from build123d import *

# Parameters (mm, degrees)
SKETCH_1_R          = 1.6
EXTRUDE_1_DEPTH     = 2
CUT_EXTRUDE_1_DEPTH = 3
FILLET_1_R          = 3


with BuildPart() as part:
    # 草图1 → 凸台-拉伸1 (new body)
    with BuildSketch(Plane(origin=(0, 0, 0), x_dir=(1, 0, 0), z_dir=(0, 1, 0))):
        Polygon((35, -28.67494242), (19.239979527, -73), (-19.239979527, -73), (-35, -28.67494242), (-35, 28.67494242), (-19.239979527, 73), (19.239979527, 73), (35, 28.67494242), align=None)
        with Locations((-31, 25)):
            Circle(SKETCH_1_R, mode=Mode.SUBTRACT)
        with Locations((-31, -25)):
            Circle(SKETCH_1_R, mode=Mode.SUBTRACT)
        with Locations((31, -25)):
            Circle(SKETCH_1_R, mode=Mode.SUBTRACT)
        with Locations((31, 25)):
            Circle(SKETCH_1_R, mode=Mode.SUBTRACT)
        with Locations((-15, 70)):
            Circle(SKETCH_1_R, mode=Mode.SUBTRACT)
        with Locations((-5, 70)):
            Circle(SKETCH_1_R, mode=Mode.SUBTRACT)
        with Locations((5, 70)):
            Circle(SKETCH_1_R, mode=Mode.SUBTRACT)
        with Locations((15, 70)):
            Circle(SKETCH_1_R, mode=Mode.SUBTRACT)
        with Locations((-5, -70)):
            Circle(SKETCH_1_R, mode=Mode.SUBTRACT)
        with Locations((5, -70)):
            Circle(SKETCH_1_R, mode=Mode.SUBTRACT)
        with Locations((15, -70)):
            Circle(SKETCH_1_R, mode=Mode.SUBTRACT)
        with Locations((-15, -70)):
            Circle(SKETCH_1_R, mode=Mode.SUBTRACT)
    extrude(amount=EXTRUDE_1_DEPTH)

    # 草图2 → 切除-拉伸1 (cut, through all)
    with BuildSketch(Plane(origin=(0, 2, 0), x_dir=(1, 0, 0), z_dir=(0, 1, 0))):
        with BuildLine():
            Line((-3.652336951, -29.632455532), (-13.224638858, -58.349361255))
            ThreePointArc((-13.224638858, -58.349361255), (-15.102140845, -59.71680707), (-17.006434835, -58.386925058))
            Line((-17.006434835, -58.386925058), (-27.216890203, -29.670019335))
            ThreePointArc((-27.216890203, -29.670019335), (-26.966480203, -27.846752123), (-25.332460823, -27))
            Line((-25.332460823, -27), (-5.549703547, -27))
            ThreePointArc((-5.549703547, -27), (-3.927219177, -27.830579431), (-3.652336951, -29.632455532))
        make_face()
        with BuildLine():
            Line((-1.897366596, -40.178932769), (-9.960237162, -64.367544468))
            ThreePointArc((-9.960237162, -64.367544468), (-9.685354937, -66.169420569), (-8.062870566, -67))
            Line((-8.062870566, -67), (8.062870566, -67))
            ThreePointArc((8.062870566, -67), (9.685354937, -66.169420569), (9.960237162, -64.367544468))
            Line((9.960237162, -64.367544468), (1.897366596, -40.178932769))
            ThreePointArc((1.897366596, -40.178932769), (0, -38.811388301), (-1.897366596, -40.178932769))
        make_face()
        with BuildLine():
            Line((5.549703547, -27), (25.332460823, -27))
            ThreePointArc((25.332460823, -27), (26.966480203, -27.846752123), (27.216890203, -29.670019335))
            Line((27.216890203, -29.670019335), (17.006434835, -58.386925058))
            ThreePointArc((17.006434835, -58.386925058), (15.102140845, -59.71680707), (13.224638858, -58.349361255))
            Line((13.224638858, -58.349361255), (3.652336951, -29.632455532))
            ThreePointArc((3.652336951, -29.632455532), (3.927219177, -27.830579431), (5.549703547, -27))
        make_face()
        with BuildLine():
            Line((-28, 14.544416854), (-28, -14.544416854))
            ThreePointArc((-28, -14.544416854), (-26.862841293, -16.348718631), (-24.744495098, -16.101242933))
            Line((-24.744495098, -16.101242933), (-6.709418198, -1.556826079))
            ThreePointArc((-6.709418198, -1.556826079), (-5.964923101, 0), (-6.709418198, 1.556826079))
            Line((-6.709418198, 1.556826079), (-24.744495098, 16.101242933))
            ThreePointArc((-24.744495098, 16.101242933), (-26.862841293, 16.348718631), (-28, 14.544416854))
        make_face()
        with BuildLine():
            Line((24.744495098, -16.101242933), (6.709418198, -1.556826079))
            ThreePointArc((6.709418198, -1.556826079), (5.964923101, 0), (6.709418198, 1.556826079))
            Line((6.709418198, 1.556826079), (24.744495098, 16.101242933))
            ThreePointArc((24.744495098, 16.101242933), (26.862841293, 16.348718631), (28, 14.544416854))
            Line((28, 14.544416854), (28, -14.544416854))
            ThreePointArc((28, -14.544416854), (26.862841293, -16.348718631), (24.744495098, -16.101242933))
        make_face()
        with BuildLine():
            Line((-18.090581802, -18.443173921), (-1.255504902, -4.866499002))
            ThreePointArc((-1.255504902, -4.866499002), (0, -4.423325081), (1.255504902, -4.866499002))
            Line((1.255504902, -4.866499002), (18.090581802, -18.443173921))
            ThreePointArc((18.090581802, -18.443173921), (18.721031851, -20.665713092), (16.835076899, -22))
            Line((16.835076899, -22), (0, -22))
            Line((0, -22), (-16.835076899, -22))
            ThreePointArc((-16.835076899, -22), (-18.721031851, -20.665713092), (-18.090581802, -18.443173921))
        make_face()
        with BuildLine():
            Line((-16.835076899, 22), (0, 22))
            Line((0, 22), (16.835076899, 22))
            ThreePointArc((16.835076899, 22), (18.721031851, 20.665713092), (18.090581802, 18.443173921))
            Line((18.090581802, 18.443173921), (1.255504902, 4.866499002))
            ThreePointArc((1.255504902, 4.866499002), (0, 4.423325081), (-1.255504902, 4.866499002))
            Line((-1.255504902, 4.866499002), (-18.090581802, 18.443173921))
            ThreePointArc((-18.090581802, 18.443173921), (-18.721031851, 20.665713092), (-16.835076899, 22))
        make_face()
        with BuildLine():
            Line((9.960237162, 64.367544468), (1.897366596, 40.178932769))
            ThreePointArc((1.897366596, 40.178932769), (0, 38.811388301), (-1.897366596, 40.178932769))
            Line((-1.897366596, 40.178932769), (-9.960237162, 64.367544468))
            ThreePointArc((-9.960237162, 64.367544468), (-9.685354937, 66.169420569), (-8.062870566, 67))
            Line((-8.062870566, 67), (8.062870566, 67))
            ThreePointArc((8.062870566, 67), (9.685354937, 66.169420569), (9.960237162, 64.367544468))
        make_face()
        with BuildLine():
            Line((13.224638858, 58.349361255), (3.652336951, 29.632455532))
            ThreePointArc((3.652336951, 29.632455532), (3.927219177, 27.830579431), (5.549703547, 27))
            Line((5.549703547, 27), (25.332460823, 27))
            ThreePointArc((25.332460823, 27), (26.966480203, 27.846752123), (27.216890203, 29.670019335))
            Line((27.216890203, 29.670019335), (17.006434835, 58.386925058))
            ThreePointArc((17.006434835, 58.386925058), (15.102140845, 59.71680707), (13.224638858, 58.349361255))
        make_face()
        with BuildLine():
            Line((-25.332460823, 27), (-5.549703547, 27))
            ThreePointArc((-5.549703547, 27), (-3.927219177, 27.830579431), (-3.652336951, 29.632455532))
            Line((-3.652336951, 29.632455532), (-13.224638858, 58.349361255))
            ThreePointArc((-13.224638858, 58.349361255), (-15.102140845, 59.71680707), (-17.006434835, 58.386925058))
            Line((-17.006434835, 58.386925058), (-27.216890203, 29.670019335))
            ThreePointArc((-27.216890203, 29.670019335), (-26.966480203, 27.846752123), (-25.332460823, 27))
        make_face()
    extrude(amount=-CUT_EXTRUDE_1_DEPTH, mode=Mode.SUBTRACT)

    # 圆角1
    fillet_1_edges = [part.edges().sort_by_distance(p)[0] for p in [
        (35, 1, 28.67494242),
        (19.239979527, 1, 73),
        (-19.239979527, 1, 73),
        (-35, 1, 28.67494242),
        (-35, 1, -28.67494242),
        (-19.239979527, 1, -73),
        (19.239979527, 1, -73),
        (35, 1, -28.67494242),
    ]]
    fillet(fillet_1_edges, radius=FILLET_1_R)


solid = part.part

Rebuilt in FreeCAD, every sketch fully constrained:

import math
import FreeCAD as App
import Part
import Sketcher
from FreeCAD import Vector
Q = App.Units.Quantity


def edges_at(feature, points):
    """Names of the edges that pass closest to the given points."""
    edges = feature.Shape.Edges
    near = lambda p: min(range(len(edges)), key=lambda i: edges[i].distToShape(Part.Vertex(*p))[0])
    return sorted({f"Edge{near(p) + 1}" for p in points})

doc = App.newDocument("Part")
body = doc.addObject("PartDesign::Body", "Body")

# Sketch on XZ plane
sketch1 = doc.addObject("Sketcher::SketchObject", "Sketch")
body.addObject(sketch1)
sketch1.AttachmentSupport = (doc.XZ_Plane, [""])
sketch1.MapMode = "FlatFace"
sketch1.addGeometry(Part.LineSegment(Vector(19.2, 73, 0), Vector(35, 28.7, 0)), False)
sketch1.addGeometry(Part.LineSegment(Vector(35, 28.7, 0), Vector(35, -28.7, 0)), False)
sketch1.addGeometry(Part.LineSegment(Vector(35, -28.7, 0), Vector(19.2, -73, 0)), False)
sketch1.addGeometry(Part.LineSegment(Vector(19.2, -73, 0), Vector(-19.2, -73, 0)), False)
sketch1.addGeometry(Part.LineSegment(Vector(-19.2, -73, 0), Vector(-35, -28.7, 0)), False)
sketch1.addGeometry(Part.LineSegment(Vector(-35, -28.7, 0), Vector(-35, 28.7, 0)), False)
sketch1.addGeometry(Part.LineSegment(Vector(-35, 28.7, 0), Vector(-19.2, 73, 0)), False)
sketch1.addGeometry(Part.LineSegment(Vector(-19.2, 73, 0), Vector(19.2, 73, 0)), False)
sketch1.addGeometry(Part.Circle(Vector(15, 70, 0), Vector(0, 0, 1), 1.6), False)
sketch1.addGeometry(Part.Circle(Vector(5, 70, 0), Vector(0, 0, 1), 1.6), False)
sketch1.addGeometry(Part.Circle(Vector(31, 25, 0), Vector(0, 0, 1), 1.6), False)
sketch1.addGeometry(Part.Circle(Vector(-5, 70, 0), Vector(0, 0, 1), 1.6), False)
sketch1.addGeometry(Part.Circle(Vector(-15, 70, 0), Vector(0, 0, 1), 1.6), False)
sketch1.addGeometry(Part.Circle(Vector(-31, 25, 0), Vector(0, 0, 1), 1.6), False)
sketch1.addGeometry(Part.Circle(Vector(31, -25, 0), Vector(0, 0, 1), 1.6), False)
sketch1.addGeometry(Part.Circle(Vector(15, -70, 0), Vector(0, 0, 1), 1.6), False)
sketch1.addGeometry(Part.Circle(Vector(5, -70, 0), Vector(0, 0, 1), 1.6), False)
sketch1.addGeometry(Part.Circle(Vector(-31, -25, 0), Vector(0, 0, 1), 1.6), False)
sketch1.addGeometry(Part.Circle(Vector(-5, -70, 0), Vector(0, 0, 1), 1.6), False)
sketch1.addGeometry(Part.Circle(Vector(-15, -70, 0), Vector(0, 0, 1), 1.6), False)
sketch1.addConstraint(Sketcher.Constraint("Coincident", 0, 2, 1, 1))
sketch1.addConstraint(Sketcher.Constraint("Coincident", 1, 2, 2, 1))
sketch1.addConstraint(Sketcher.Constraint("Coincident", 2, 2, 3, 1))
sketch1.addConstraint(Sketcher.Constraint("Coincident", 3, 2, 4, 1))
sketch1.addConstraint(Sketcher.Constraint("Coincident", 4, 2, 5, 1))
sketch1.addConstraint(Sketcher.Constraint("Coincident", 5, 2, 6, 1))
sketch1.addConstraint(Sketcher.Constraint("Coincident", 6, 2, 7, 1))
sketch1.addConstraint(Sketcher.Constraint("Coincident", 7, 2, 0, 1))
sketch1.addConstraint(Sketcher.Constraint("Vertical", 1))
sketch1.addConstraint(Sketcher.Constraint("Horizontal", 3))
sketch1.addConstraint(Sketcher.Constraint("Vertical", 5))
sketch1.addConstraint(Sketcher.Constraint("Horizontal", 7))
sketch1.addConstraint(Sketcher.Constraint("Equal", 8, 9))
sketch1.addConstraint(Sketcher.Constraint("Equal", 9, 10))
sketch1.addConstraint(Sketcher.Constraint("Equal", 10, 11))
sketch1.addConstraint(Sketcher.Constraint("Equal", 11, 12))
sketch1.addConstraint(Sketcher.Constraint("Equal", 12, 13))
sketch1.addConstraint(Sketcher.Constraint("Equal", 13, 14))
sketch1.addConstraint(Sketcher.Constraint("Equal", 14, 15))
sketch1.addConstraint(Sketcher.Constraint("Equal", 15, 16))
sketch1.addConstraint(Sketcher.Constraint("Equal", 16, 17))
sketch1.addConstraint(Sketcher.Constraint("Equal", 17, 18))
sketch1.addConstraint(Sketcher.Constraint("Equal", 18, 19))
sketch1.addConstraint(Sketcher.Constraint("Symmetric", 13, 3, 14, 3, -1, 1))
sketch1.addConstraint(Sketcher.Constraint("Symmetric", 12, 3, 15, 3, -1, 1))
sketch1.addConstraint(Sketcher.Constraint("Symmetric", 11, 3, 16, 3, -1, 1))
sketch1.addConstraint(Sketcher.Constraint("Symmetric", 10, 3, 17, 3, -1, 1))
sketch1.addConstraint(Sketcher.Constraint("Symmetric", 9, 3, 18, 3, -1, 1))
sketch1.addConstraint(Sketcher.Constraint("Symmetric", 8, 3, 19, 3, -1, 1))
sketch1.addConstraint(Sketcher.Constraint("Symmetric", 0, 2, 4, 2, -1, 1))
sketch1.addConstraint(Sketcher.Constraint("Symmetric", 2, 2, 6, 2, -1, 1))
sketch1.addConstraint(Sketcher.Constraint("Symmetric", 9, 3, 11, 3, -2))
sketch1.addConstraint(Sketcher.Constraint("Symmetric", 8, 3, 12, 3, -2))
sketch1.addConstraint(Sketcher.Constraint("Symmetric", 10, 3, 13, 3, -2))
sketch1.addConstraint(Sketcher.Constraint("Parallel", 0, 4))
sketch1.addConstraint(Sketcher.Constraint("Parallel", 2, 6))
sketch1.addConstraint(Sketcher.Constraint("Horizontal", 8, 3, 9, 3))
sketch1.addConstraint(Sketcher.Constraint("Horizontal", 1, 2, 4, 2))
sketch1.addConstraint(Sketcher.Constraint("Vertical", 3, 2, 6, 2))
sketch1.addConstraint(Sketcher.Constraint("Diameter", 8, Q("3.2 mm")))
sketch1.addConstraint(Sketcher.Constraint("DistanceX", -1, 1, 8, 3, Q("15 mm")))
sketch1.addConstraint(Sketcher.Constraint("DistanceY", -1, 1, 8, 3, Q("70 mm")))
sketch1.addConstraint(Sketcher.Constraint("DistanceX", -1, 1, 9, 3, Q("5 mm")))
sketch1.addConstraint(Sketcher.Constraint("DistanceX", -1, 1, 10, 3, Q("31 mm")))
sketch1.addConstraint(Sketcher.Constraint("DistanceY", -1, 1, 10, 3, Q("25 mm")))
sketch1.addConstraint(Sketcher.Constraint("DistanceX", -1, 1, 0, 2, Q("35 mm")))
sketch1.addConstraint(Sketcher.Constraint("DistanceY", 2, 2, -1, 1, Q("73 mm")))
sketch1.addConstraint(Sketcher.Constraint("DistanceX", 3, 2, 3, 1, Q("38.479959 mm")))
sketch1.addConstraint(Sketcher.Constraint("Distance", 0, Q("47.04348 mm")))
pad1 = doc.addObject("PartDesign::Pad", "Pad")
body.addObject(pad1)
pad1.Profile = sketch1
pad1.Length = 2
pad1.Reversed = True

# Sketch on XZ plane
sketch2 = doc.addObject("Sketcher::SketchObject", "Sketch001")
body.addObject(sketch2)
sketch2.AttachmentSupport = (doc.XZ_Plane, [""])
sketch2.MapMode = "FlatFace"
sketch2.AttachmentOffset = App.Placement(Vector(0, 0, -2), App.Rotation())
sketch2.addGeometry(Part.LineSegment(Vector(-13.2, 58.3, 0), Vector(-3.7, 29.6, 0)), False)
sketch2.addGeometry(Part.ArcOfCircle(Part.Circle(Vector(-5.5, 29, 0), Vector(0, 0, 1), 2), math.radians(-90), math.radians(18)), False)
sketch2.addGeometry(Part.LineSegment(Vector(-5.5, 27, 0), Vector(-25.3, 27, 0)), False)
sketch2.addGeometry(Part.ArcOfCircle(Part.Circle(Vector(-25.3, 29, 0), Vector(0, 0, 1), 2), math.radians(160), math.radians(270)), False)
sketch2.addGeometry(Part.LineSegment(Vector(-27.2, 29.7, 0), Vector(-17, 58.4, 0)), False)
sketch2.addGeometry(Part.ArcOfCircle(Part.Circle(Vector(-15.1, 57.7, 0), Vector(0, 0, 1), 2), math.radians(18), math.radians(160)), False)
sketch2.addGeometry(Part.LineSegment(Vector(-1.9, 40.2, 0), Vector(-10, 64.4, 0)), False)
sketch2.addGeometry(Part.ArcOfCircle(Part.Circle(Vector(-8.1, 65, 0), Vector(0, 0, 1), 2), math.radians(90), math.radians(198)), False)
sketch2.addGeometry(Part.LineSegment(Vector(-8.1, 67, 0), Vector(8.1, 67, 0)), False)
sketch2.addGeometry(Part.ArcOfCircle(Part.Circle(Vector(8.1, 65, 0), Vector(0, 0, 1), 2), math.radians(-18), math.radians(90)), False)
sketch2.addGeometry(Part.LineSegment(Vector(10, 64.4, 0), Vector(1.9, 40.2, 0)), False)
sketch2.addGeometry(Part.ArcOfCircle(Part.Circle(Vector(0, 40.8, 0), Vector(0, 0, 1), 2), math.radians(-162), math.radians(-18)), False)
sketch2.addGeometry(Part.LineSegment(Vector(25.3, 27, 0), Vector(5.5, 27, 0)), False)
sketch2.addGeometry(Part.ArcOfCircle(Part.Circle(Vector(5.5, 29, 0), Vector(0, 0, 1), 2), math.radians(162), math.radians(270)), False)
sketch2.addGeometry(Part.LineSegment(Vector(3.7, 29.6, 0), Vector(13.2, 58.3, 0)), False)
sketch2.addGeometry(Part.ArcOfCircle(Part.Circle(Vector(15.1, 57.7, 0), Vector(0, 0, 1), 2), math.radians(20), math.radians(162)), False)
sketch2.addGeometry(Part.LineSegment(Vector(17, 58.4, 0), Vector(27.2, 29.7, 0)), False)
sketch2.addGeometry(Part.ArcOfCircle(Part.Circle(Vector(25.3, 29, 0), Vector(0, 0, 1), 2), math.radians(-90), math.radians(20)), False)
sketch2.addGeometry(Part.LineSegment(Vector(-28, -14.5, 0), Vector(-28, 14.5, 0)), False)
sketch2.addGeometry(Part.ArcOfCircle(Part.Circle(Vector(-26, 14.5, 0), Vector(0, 0, 1), 2), math.radians(51), math.radians(180)), False)
sketch2.addGeometry(Part.LineSegment(Vector(-24.7, 16.1, 0), Vector(-6.7, 1.6, 0)), False)
sketch2.addGeometry(Part.ArcOfCircle(Part.Circle(Vector(-8, 0, 0), Vector(0, 0, 1), 2), math.radians(-51), math.radians(51)), False)
sketch2.addGeometry(Part.LineSegment(Vector(-6.7, -1.6, 0), Vector(-24.7, -16.1, 0)), False)
sketch2.addGeometry(Part.ArcOfCircle(Part.Circle(Vector(-26, -14.5, 0), Vector(0, 0, 1), 2), math.radians(180), math.radians(309)), False)
sketch2.addGeometry(Part.LineSegment(Vector(6.7, 1.6, 0), Vector(24.7, 16.1, 0)), False)
sketch2.addGeometry(Part.ArcOfCircle(Part.Circle(Vector(26, 14.5, 0), Vector(0, 0, 1), 2), math.radians(0), math.radians(129)), False)
sketch2.addGeometry(Part.LineSegment(Vector(28, 14.5, 0), Vector(28, -14.5, 0)), False)
sketch2.addGeometry(Part.ArcOfCircle(Part.Circle(Vector(26, -14.5, 0), Vector(0, 0, 1), 2), math.radians(-129), math.radians(0)), False)
sketch2.addGeometry(Part.LineSegment(Vector(24.7, -16.1, 0), Vector(6.7, -1.6, 0)), False)
sketch2.addGeometry(Part.ArcOfCircle(Part.Circle(Vector(8, 0, 0), Vector(0, 0, 1), 2), math.radians(129), math.radians(231)), False)
sketch2.addGeometry(Part.LineSegment(Vector(-1.3, 4.9, 0), Vector(-18.1, 18.4, 0)), False)
sketch2.addGeometry(Part.ArcOfCircle(Part.Circle(Vector(-16.8, 20, 0), Vector(0, 0, 1), 2), math.radians(90), math.radians(231)), False)
sketch2.addGeometry(Part.LineSegment(Vector(-16.8, 22, 0), Vector(16.8, 22, 0)), False)
sketch2.addGeometry(Part.ArcOfCircle(Part.Circle(Vector(16.8, 20, 0), Vector(0, 0, 1), 2), math.radians(-51), math.radians(90)), False)
sketch2.addGeometry(Part.LineSegment(Vector(18.1, 18.4, 0), Vector(1.3, 4.9, 0)), False)
sketch2.addGeometry(Part.ArcOfCircle(Part.Circle(Vector(0, 6.4, 0), Vector(0, 0, 1), 2), math.radians(-129), math.radians(-51)), False)
sketch2.addGeometry(Part.LineSegment(Vector(16.8, -22, 0), Vector(-16.8, -22, 0)), False)
sketch2.addGeometry(Part.ArcOfCircle(Part.Circle(Vector(-16.8, -20, 0), Vector(0, 0, 1), 2), math.radians(129), math.radians(270)), False)
sketch2.addGeometry(Part.LineSegment(Vector(-18.1, -18.4, 0), Vector(-1.3, -4.9, 0)), False)
sketch2.addGeometry(Part.ArcOfCircle(Part.Circle(Vector(0, -6.4, 0), Vector(0, 0, 1), 2), math.radians(51), math.radians(129)), False)
sketch2.addGeometry(Part.LineSegment(Vector(1.3, -4.9, 0), Vector(18.1, -18.4, 0)), False)
sketch2.addGeometry(Part.ArcOfCircle(Part.Circle(Vector(16.8, -20, 0), Vector(0, 0, 1), 2), math.radians(-90), math.radians(51)), False)
sketch2.addGeometry(Part.LineSegment(Vector(1.9, -40.2, 0), Vector(10, -64.4, 0)), False)
sketch2.addGeometry(Part.ArcOfCircle(Part.Circle(Vector(8.1, -65, 0), Vector(0, 0, 1), 2), math.radians(-90), math.radians(18)), False)
sketch2.addGeometry(Part.LineSegment(Vector(8.1, -67, 0), Vector(-8.1, -67, 0)), False)
sketch2.addGeometry(Part.ArcOfCircle(Part.Circle(Vector(-8.1, -65, 0), Vector(0, 0, 1), 2), math.radians(162), math.radians(270)), False)
sketch2.addGeometry(Part.LineSegment(Vector(-10, -64.4, 0), Vector(-1.9, -40.2, 0)), False)
sketch2.addGeometry(Part.ArcOfCircle(Part.Circle(Vector(0, -40.8, 0), Vector(0, 0, 1), 2), math.radians(18), math.radians(162)), False)
sketch2.addGeometry(Part.LineSegment(Vector(13.2, -58.3, 0), Vector(3.7, -29.6, 0)), False)
sketch2.addGeometry(Part.ArcOfCircle(Part.Circle(Vector(5.5, -29, 0), Vector(0, 0, 1), 2), math.radians(90), math.radians(198)), False)
sketch2.addGeometry(Part.LineSegment(Vector(5.5, -27, 0), Vector(25.3, -27, 0)), False)
sketch2.addGeometry(Part.ArcOfCircle(Part.Circle(Vector(25.3, -29, 0), Vector(0, 0, 1), 2), math.radians(-20), math.radians(90)), False)
sketch2.addGeometry(Part.LineSegment(Vector(27.2, -29.7, 0), Vector(17, -58.4, 0)), False)
sketch2.addGeometry(Part.ArcOfCircle(Part.Circle(Vector(15.1, -57.7, 0), Vector(0, 0, 1), 2), math.radians(-162), math.radians(-20)), False)
sketch2.addGeometry(Part.LineSegment(Vector(-25.3, -27, 0), Vector(-5.5, -27, 0)), False)
sketch2.addGeometry(Part.ArcOfCircle(Part.Circle(Vector(-5.5, -29, 0), Vector(0, 0, 1), 2), math.radians(-18), math.radians(90)), False)
sketch2.addGeometry(Part.LineSegment(Vector(-3.7, -29.6, 0), Vector(-13.2, -58.3, 0)), False)
sketch2.addGeometry(Part.ArcOfCircle(Part.Circle(Vector(-15.1, -57.7, 0), Vector(0, 0, 1), 2), math.radians(-160), math.radians(-18)), False)
sketch2.addGeometry(Part.LineSegment(Vector(-17, -58.4, 0), Vector(-27.2, -29.7, 0)), False)
sketch2.addGeometry(Part.ArcOfCircle(Part.Circle(Vector(-25.3, -29, 0), Vector(0, 0, 1), 2), math.radians(90), math.radians(200)), False)
sketch2.addConstraint(Sketcher.Constraint("Tangent", 0, 2, 1, 2))
sketch2.addConstraint(Sketcher.Constraint("Tangent", 1, 1, 2, 1))
sketch2.addConstraint(Sketcher.Constraint("Tangent", 2, 2, 3, 2))
sketch2.addConstraint(Sketcher.Constraint("Tangent", 3, 1, 4, 1))
sketch2.addConstraint(Sketcher.Constraint("Tangent", 4, 2, 5, 2))
sketch2.addConstraint(Sketcher.Constraint("Tangent", 5, 1, 0, 1))
sketch2.addConstraint(Sketcher.Constraint("Tangent", 6, 2, 7, 2))
sketch2.addConstraint(Sketcher.Constraint("Tangent", 7, 1, 8, 1))
sketch2.addConstraint(Sketcher.Constraint("Tangent", 8, 2, 9, 2))
sketch2.addConstraint(Sketcher.Constraint("Tangent", 9, 1, 10, 1))
sketch2.addConstraint(Sketcher.Constraint("Tangent", 10, 2, 11, 2))
sketch2.addConstraint(Sketcher.Constraint("Tangent", 11, 1, 6, 1))
sketch2.addConstraint(Sketcher.Constraint("Tangent", 12, 2, 13, 2))
sketch2.addConstraint(Sketcher.Constraint("Tangent", 13, 1, 14, 1))
sketch2.addConstraint(Sketcher.Constraint("Tangent", 14, 2, 15, 2))
sketch2.addConstraint(Sketcher.Constraint("Tangent", 15, 1, 16, 1))
sketch2.addConstraint(Sketcher.Constraint("Tangent", 16, 2, 17, 2))
sketch2.addConstraint(Sketcher.Constraint("Tangent", 17, 1, 12, 1))
sketch2.addConstraint(Sketcher.Constraint("Tangent", 18, 2, 19, 2))
sketch2.addConstraint(Sketcher.Constraint("Tangent", 19, 1, 20, 1))
sketch2.addConstraint(Sketcher.Constraint("Tangent", 20, 2, 21, 2))
sketch2.addConstraint(Sketcher.Constraint("Tangent", 21, 1, 22, 1))
sketch2.addConstraint(Sketcher.Constraint("Tangent", 22, 2, 23, 2))
sketch2.addConstraint(Sketcher.Constraint("Tangent", 23, 1, 18, 1))
sketch2.addConstraint(Sketcher.Constraint("Tangent", 24, 2, 25, 2))
sketch2.addConstraint(Sketcher.Constraint("Tangent", 25, 1, 26, 1))
sketch2.addConstraint(Sketcher.Constraint("Tangent", 26, 2, 27, 2))
sketch2.addConstraint(Sketcher.Constraint("Tangent", 27, 1, 28, 1))
sketch2.addConstraint(Sketcher.Constraint("Tangent", 28, 2, 29, 2))
sketch2.addConstraint(Sketcher.Constraint("Tangent", 29, 1, 24, 1))
sketch2.addConstraint(Sketcher.Constraint("Tangent", 30, 2, 31, 2))
sketch2.addConstraint(Sketcher.Constraint("Tangent", 31, 1, 32, 1))
sketch2.addConstraint(Sketcher.Constraint("Tangent", 32, 2, 33, 2))
sketch2.addConstraint(Sketcher.Constraint("Tangent", 33, 1, 34, 1))
sketch2.addConstraint(Sketcher.Constraint("Tangent", 34, 2, 35, 2))
sketch2.addConstraint(Sketcher.Constraint("Tangent", 35, 1, 30, 1))
sketch2.addConstraint(Sketcher.Constraint("Tangent", 36, 2, 37, 2))
sketch2.addConstraint(Sketcher.Constraint("Tangent", 37, 1, 38, 1))
sketch2.addConstraint(Sketcher.Constraint("Tangent", 38, 2, 39, 2))
sketch2.addConstraint(Sketcher.Constraint("Tangent", 39, 1, 40, 1))
sketch2.addConstraint(Sketcher.Constraint("Tangent", 40, 2, 41, 2))
sketch2.addConstraint(Sketcher.Constraint("Tangent", 41, 1, 36, 1))
sketch2.addConstraint(Sketcher.Constraint("Tangent", 42, 2, 43, 2))
sketch2.addConstraint(Sketcher.Constraint("Tangent", 43, 1, 44, 1))
sketch2.addConstraint(Sketcher.Constraint("Tangent", 44, 2, 45, 2))
sketch2.addConstraint(Sketcher.Constraint("Tangent", 45, 1, 46, 1))
sketch2.addConstraint(Sketcher.Constraint("Tangent", 46, 2, 47, 2))
sketch2.addConstraint(Sketcher.Constraint("Tangent", 47, 1, 42, 1))
sketch2.addConstraint(Sketcher.Constraint("Tangent", 48, 2, 49, 2))
sketch2.addConstraint(Sketcher.Constraint("Tangent", 49, 1, 50, 1))
sketch2.addConstraint(Sketcher.Constraint("Tangent", 50, 2, 51, 2))
sketch2.addConstraint(Sketcher.Constraint("Tangent", 51, 1, 52, 1))
sketch2.addConstraint(Sketcher.Constraint("Tangent", 52, 2, 53, 2))
sketch2.addConstraint(Sketcher.Constraint("Tangent", 53, 1, 48, 1))
sketch2.addConstraint(Sketcher.Constraint("Tangent", 54, 2, 55, 2))
sketch2.addConstraint(Sketcher.Constraint("Tangent", 55, 1, 56, 1))
sketch2.addConstraint(Sketcher.Constraint("Tangent", 56, 2, 57, 2))
sketch2.addConstraint(Sketcher.Constraint("Tangent", 57, 1, 58, 1))
sketch2.addConstraint(Sketcher.Constraint("Tangent", 58, 2, 59, 2))
sketch2.addConstraint(Sketcher.Constraint("Tangent", 59, 1, 54, 1))
sketch2.addConstraint(Sketcher.Constraint("Horizontal", 2))
sketch2.addConstraint(Sketcher.Constraint("Horizontal", 8))
sketch2.addConstraint(Sketcher.Constraint("Horizontal", 12))
sketch2.addConstraint(Sketcher.Constraint("Vertical", 18))
sketch2.addConstraint(Sketcher.Constraint("Vertical", 26))
sketch2.addConstraint(Sketcher.Constraint("Horizontal", 32))
sketch2.addConstraint(Sketcher.Constraint("Horizontal", 36))
sketch2.addConstraint(Sketcher.Constraint("Horizontal", 44))
sketch2.addConstraint(Sketcher.Constraint("Horizontal", 50))
sketch2.addConstraint(Sketcher.Constraint("Horizontal", 54))
sketch2.addConstraint(Sketcher.Constraint("Equal", 1, 3))
sketch2.addConstraint(Sketcher.Constraint("Equal", 3, 5))
sketch2.addConstraint(Sketcher.Constraint("Equal", 5, 7))
sketch2.addConstraint(Sketcher.Constraint("Equal", 7, 9))
sketch2.addConstraint(Sketcher.Constraint("Equal", 9, 11))
sketch2.addConstraint(Sketcher.Constraint("Equal", 11, 13))
sketch2.addConstraint(Sketcher.Constraint("Equal", 13, 15))
sketch2.addConstraint(Sketcher.Constraint("Equal", 15, 17))
sketch2.addConstraint(Sketcher.Constraint("Equal", 17, 19))
sketch2.addConstraint(Sketcher.Constraint("Equal", 19, 21))
sketch2.addConstraint(Sketcher.Constraint("Equal", 21, 23))
sketch2.addConstraint(Sketcher.Constraint("Equal", 23, 25))
sketch2.addConstraint(Sketcher.Constraint("Equal", 25, 27))
sketch2.addConstraint(Sketcher.Constraint("Equal", 27, 29))
sketch2.addConstraint(Sketcher.Constraint("Equal", 29, 31))
sketch2.addConstraint(Sketcher.Constraint("Equal", 31, 33))
sketch2.addConstraint(Sketcher.Constraint("Equal", 33, 35))
sketch2.addConstraint(Sketcher.Constraint("Equal", 35, 37))
sketch2.addConstraint(Sketcher.Constraint("Equal", 37, 39))
sketch2.addConstraint(Sketcher.Constraint("Equal", 39, 41))
sketch2.addConstraint(Sketcher.Constraint("Equal", 41, 43))
sketch2.addConstraint(Sketcher.Constraint("Equal", 43, 45))
sketch2.addConstraint(Sketcher.Constraint("Equal", 45, 47))
sketch2.addConstraint(Sketcher.Constraint("Equal", 47, 49))
sketch2.addConstraint(Sketcher.Constraint("Equal", 49, 51))
sketch2.addConstraint(Sketcher.Constraint("Equal", 51, 53))
sketch2.addConstraint(Sketcher.Constraint("Equal", 53, 55))
sketch2.addConstraint(Sketcher.Constraint("Equal", 55, 57))
sketch2.addConstraint(Sketcher.Constraint("Equal", 57, 59))
sketch2.addConstraint(Sketcher.Constraint("Symmetric", 23, 3, 25, 3, -1, 1))
sketch2.addConstraint(Sketcher.Constraint("Symmetric", 21, 3, 29, 3, -1, 1))
sketch2.addConstraint(Sketcher.Constraint("Symmetric", 33, 3, 37, 3, -1, 1))
sketch2.addConstraint(Sketcher.Constraint("Symmetric", 35, 3, 39, 3, -1, 1))
sketch2.addConstraint(Sketcher.Constraint("Symmetric", 7, 3, 43, 3, -1, 1))
sketch2.addConstraint(Sketcher.Constraint("Symmetric", 11, 3, 47, 3, -1, 1))
sketch2.addConstraint(Sketcher.Constraint("Symmetric", 1, 3, 49, 3, -1, 1))
sketch2.addConstraint(Sketcher.Constraint("Symmetric", 5, 3, 53, 3, -1, 1))
sketch2.addConstraint(Sketcher.Constraint("Symmetric", 13, 3, 55, 3, -1, 1))
sketch2.addConstraint(Sketcher.Constraint("Symmetric", 15, 3, 57, 3, -1, 1))
sketch2.addConstraint(Sketcher.Constraint("Symmetric", 1, 3, 13, 3, -2))
sketch2.addConstraint(Sketcher.Constraint("Symmetric", 5, 3, 15, 3, -2))
sketch2.addConstraint(Sketcher.Constraint("Symmetric", 6, 2, 9, 1, -2))
sketch2.addConstraint(Sketcher.Constraint("Symmetric", 19, 1, 24, 2, -2))
sketch2.addConstraint(Sketcher.Constraint("Symmetric", 30, 2, 33, 1, -2))
sketch2.addConstraint(Sketcher.Constraint("Parallel", 0, 6))
sketch2.addConstraint(Sketcher.Constraint("Parallel", 20, 28))
sketch2.addConstraint(Sketcher.Constraint("Parallel", 28, 30))
sketch2.addConstraint(Sketcher.Constraint("Parallel", 30, 40))
sketch2.addConstraint(Sketcher.Constraint("Parallel", 14, 46))
sketch2.addConstraint(Sketcher.Constraint("Parallel", 4, 52))
sketch2.addConstraint(Sketcher.Constraint("Parallel", 16, 58))
sketch2.addConstraint(Sketcher.Constraint("Horizontal", 4, 2, 15, 1))
sketch2.addConstraint(Sketcher.Constraint("Radius", 1, Q("2 mm")))
sketch2.addConstraint(Sketcher.Constraint("DistanceY", -1, 1, 1, 3, Q("29 mm")))
sketch2.addConstraint(Sketcher.Constraint("DistanceY", -1, 1, 7, 3, Q("65 mm")))
sketch2.addConstraint(Sketcher.Constraint("DistanceX", 19, 3, -1, 1, Q("26 mm")))
sketch2.addConstraint(Sketcher.Constraint("DistanceY", -1, 1, 31, 3, Q("20 mm")))
sketch2.addConstraint(Sketcher.Constraint("DistanceX", 8, 1, 8, 2, Q("16.125741 mm")))
sketch2.addConstraint(Sketcher.Constraint("DistanceY", -1, 1, 34, 2, Q("4.866499 mm")))
sketch2.addConstraint(Sketcher.Constraint("Distance", 4, Q("30.478092 mm")))
sketch2.addConstraint(Sketcher.Constraint("DistanceX", 2, 2, 2, 1, Q("19.782757 mm")))
sketch2.addConstraint(Sketcher.Constraint("DistanceX", 32, 1, 32, 2, Q("33.670154 mm")))
sketch2.addConstraint(Sketcher.Constraint("DistanceY", 18, 1, 18, 2, Q("29.088834 mm")))
sketch2.addConstraint(Sketcher.Constraint("DistanceX", 3, 3, -1, 1, Q("25.332461 mm")))
sketch2.addConstraint(Sketcher.Constraint("DistanceY", -1, 1, 11, 3, Q("40.811388 mm")))
pocket1 = doc.addObject("PartDesign::Pocket", "Pocket")
body.addObject(pocket1)
pocket1.Profile = sketch2
pocket1.Type = "ThroughAll"
pocket1.Reversed = True
doc.recompute()

fillet = doc.addObject("PartDesign::Fillet", "Fillet")
body.addObject(fillet)
fillet.Base = (pocket1, edges_at(pocket1, [
    (35, 1, 28.675),
    (19.24, 1, 73),
    (-19.24, 1, 73),
    (-35, 1, 28.675),
    (-35, 1, -28.675),
    (-19.24, 1, -73),
    (19.24, 1, -73),
    (35, 1, -28.675),
]))
fillet.Radius = 3

doc.recompute()
